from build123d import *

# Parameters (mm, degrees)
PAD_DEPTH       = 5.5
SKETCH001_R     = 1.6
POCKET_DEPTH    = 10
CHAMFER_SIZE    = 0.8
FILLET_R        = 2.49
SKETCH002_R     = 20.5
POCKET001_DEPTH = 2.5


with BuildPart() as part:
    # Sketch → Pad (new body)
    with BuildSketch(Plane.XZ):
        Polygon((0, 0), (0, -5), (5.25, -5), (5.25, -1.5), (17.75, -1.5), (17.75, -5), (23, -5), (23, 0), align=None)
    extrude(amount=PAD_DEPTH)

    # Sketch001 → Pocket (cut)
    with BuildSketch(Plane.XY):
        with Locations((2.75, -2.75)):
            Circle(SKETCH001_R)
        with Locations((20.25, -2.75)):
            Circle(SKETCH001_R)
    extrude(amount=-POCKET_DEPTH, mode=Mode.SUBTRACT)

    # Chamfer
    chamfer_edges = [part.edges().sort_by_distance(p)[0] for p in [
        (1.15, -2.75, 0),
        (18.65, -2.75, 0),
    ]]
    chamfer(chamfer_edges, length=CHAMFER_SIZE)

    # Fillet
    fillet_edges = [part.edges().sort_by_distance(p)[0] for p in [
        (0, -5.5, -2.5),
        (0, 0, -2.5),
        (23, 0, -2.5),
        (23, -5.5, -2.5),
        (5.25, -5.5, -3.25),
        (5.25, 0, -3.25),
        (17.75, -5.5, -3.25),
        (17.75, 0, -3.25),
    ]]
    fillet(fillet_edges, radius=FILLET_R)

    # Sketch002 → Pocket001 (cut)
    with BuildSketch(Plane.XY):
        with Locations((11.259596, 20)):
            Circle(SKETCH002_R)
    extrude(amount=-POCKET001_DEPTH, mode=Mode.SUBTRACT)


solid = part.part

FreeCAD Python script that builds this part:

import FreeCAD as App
import Part
import Sketcher

V = App.Vector
Q = App.Units.Quantity


def edges_at(feature, points):
    """Names of the edges that pass closest to the given points."""
    edges = feature.Shape.Edges
    near = lambda p: min(range(len(edges)), key=lambda i: edges[i].distToShape(Part.Vertex(*p))[0])
    return sorted({f"Edge{near(p) + 1}" for p in points})

doc = App.newDocument("Part")
body = doc.addObject("PartDesign::Body", "Body")

# Sketch on XZ plane
sketch1 = body.newObject("Sketcher::SketchObject", "Sketch")
sketch1.AttachmentSupport = (doc.getObject("XZ_Plane"), [""])
sketch1.MapMode = "FlatFace"
sketch1.addGeometry(Part.LineSegment(V(0, 0, 0), V(0, -5, 0)), False)
sketch1.addGeometry(Part.LineSegment(V(0, -5, 0), V(5.25, -5, 0)), False)
sketch1.addGeometry(Part.LineSegment(V(5.25, -5, 0), V(5.25, -1.5, 0)), False)
sketch1.addGeometry(Part.LineSegment(V(5.25, -1.5, 0), V(17.75, -1.5, 0)), False)
sketch1.addGeometry(Part.LineSegment(V(17.75, -1.5, 0), V(17.75, -5, 0)), False)
sketch1.addGeometry(Part.LineSegment(V(17.75, -5, 0), V(23, -5, 0)), False)
sketch1.addGeometry(Part.LineSegment(V(23, -5, 0), V(23, 0, 0)), False)
sketch1.addGeometry(Part.LineSegment(V(23, 0, 0), V(0, 0, 0)), False)
sketch1.addConstraint(Sketcher.Constraint("Coincident", 0, 2, 1, 1))
sketch1.addConstraint(Sketcher.Constraint("Coincident", 1, 2, 2, 1))
sketch1.addConstraint(Sketcher.Constraint("Coincident", 2, 2, 3, 1))
sketch1.addConstraint(Sketcher.Constraint("Coincident", 3, 2, 4, 1))
sketch1.addConstraint(Sketcher.Constraint("Coincident", 4, 2, 5, 1))
sketch1.addConstraint(Sketcher.Constraint("Coincident", 5, 2, 6, 1))
sketch1.addConstraint(Sketcher.Constraint("Coincident", 6, 2, 7, 1))
sketch1.addConstraint(Sketcher.Constraint("Coincident", 7, 2, 0, 1))
sketch1.addConstraint(Sketcher.Constraint("Vertical", 0))
sketch1.addConstraint(Sketcher.Constraint("Horizontal", 1))
sketch1.addConstraint(Sketcher.Constraint("Vertical", 2))
sketch1.addConstraint(Sketcher.Constraint("Horizontal", 3))
sketch1.addConstraint(Sketcher.Constraint("Vertical", 4))
sketch1.addConstraint(Sketcher.Constraint("Horizontal", 5))
sketch1.addConstraint(Sketcher.Constraint("Vertical", 6))
sketch1.addConstraint(Sketcher.Constraint("Horizontal", 7))
sketch1.addConstraint(Sketcher.Constraint("Coincident", 7, 2, -1, 1))
sketch1.addConstraint(Sketcher.Constraint("Horizontal", 1, 2, 4, 2))
sketch1.addConstraint(Sketcher.Constraint("Equal", 1, 5))
sketch1.addConstraint(Sketcher.Constraint("DistanceX", 7, 2, 7, 1, Q("23 mm")))
sketch1.addConstraint(Sketcher.Constraint("DistanceY", 0, 2, 0, 1, Q("5 mm")))
sketch1.addConstraint(Sketcher.Constraint("DistanceX", 3, 1, 3, 2, Q("12.5 mm")))
sketch1.addConstraint(Sketcher.Constraint("DistanceY", 2, 1, 2, 2, Q("3.5 mm")))
pad1 = body.newObject("PartDesign::Pad", "Pad")
pad1.Profile = sketch1
pad1.Length = 5.5

# Sketch on XY plane
sketch2 = body.newObject("Sketcher::SketchObject", "Sketch001")
sketch2.AttachmentSupport = (doc.getObject("XY_Plane"), [""])
sketch2.MapMode = "FlatFace"
sketch2.addGeometry(Part.Circle(V(2.75, -2.75, 0), V(0, 0, 1), 1.6), False)
sketch2.addGeometry(Part.Circle(V(20.25, -2.75, 0), V(0, 0, 1), 1.6), False)
sketch2.addConstraint(Sketcher.Constraint("Equal", 0, 1))
sketch2.addConstraint(Sketcher.Constraint("Horizontal", 0, 3, 1, 3))
sketch2.addConstraint(Sketcher.Constraint("Diameter", 0, Q("3.2 mm")))
sketch2.addConstraint(Sketcher.Constraint("DistanceX", 0, 3, 1, 3, Q("17.5 mm")))
sketch2.addConstraint(Sketcher.Constraint("DistanceX", -1, 1, 0, 3, Q("2.75 mm")))
sketch2.addConstraint(Sketcher.Constraint("DistanceY", 0, 3, -1, 1, Q("2.75 mm")))
pocket1 = body.newObject("PartDesign::Pocket", "Pocket")
pocket1.Profile = sketch2
pocket1.Length = 10
doc.recompute()

chamfer = body.newObject("PartDesign::Chamfer", "Chamfer")
chamfer.Base = (pocket1, edges_at(pocket1, [(1.15, -2.75, 0), (18.65, -2.75, 0)]))
chamfer.Size = 0.8
doc.recompute()

fillet = body.newObject("PartDesign::Fillet", "Fillet")
fillet.Base = (chamfer, edges_at(chamfer, [
    (0, -5.5, -2.5),
    (0, 0, -2.5),
    (23, 0, -2.5),
    (23, -5.5, -2.5),
    (5.25, -5.5, -3.25),
    (5.25, 0, -3.25),
    (17.75, -5.5, -3.25),
    (17.75, 0, -3.25),
]))
fillet.Radius = 2.49

# Sketch on XY plane
sketch3 = body.newObject("Sketcher::SketchObject", "Sketch002")
sketch3.AttachmentSupport = (doc.getObject("XY_Plane"), [""])
sketch3.MapMode = "FlatFace"
sketch3.addGeometry(Part.Circle(V(11.259596, 20, 0), V(0, 0, 1), 20.5), False)
sketch3.addConstraint(Sketcher.Constraint("Diameter", 0, Q("41 mm")))
sketch3.addConstraint(Sketcher.Constraint("DistanceY", -1, 1, 0, 3, Q("20 mm")))
sketch3.addConstraint(Sketcher.Constraint("DistanceX", -1, 1, 0, 3, Q("11.259596 mm")))
pocket2 = body.newObject("PartDesign::Pocket", "Pocket001")
pocket2.Profile = sketch3
pocket2.Length = 2.5

doc.recompute()
